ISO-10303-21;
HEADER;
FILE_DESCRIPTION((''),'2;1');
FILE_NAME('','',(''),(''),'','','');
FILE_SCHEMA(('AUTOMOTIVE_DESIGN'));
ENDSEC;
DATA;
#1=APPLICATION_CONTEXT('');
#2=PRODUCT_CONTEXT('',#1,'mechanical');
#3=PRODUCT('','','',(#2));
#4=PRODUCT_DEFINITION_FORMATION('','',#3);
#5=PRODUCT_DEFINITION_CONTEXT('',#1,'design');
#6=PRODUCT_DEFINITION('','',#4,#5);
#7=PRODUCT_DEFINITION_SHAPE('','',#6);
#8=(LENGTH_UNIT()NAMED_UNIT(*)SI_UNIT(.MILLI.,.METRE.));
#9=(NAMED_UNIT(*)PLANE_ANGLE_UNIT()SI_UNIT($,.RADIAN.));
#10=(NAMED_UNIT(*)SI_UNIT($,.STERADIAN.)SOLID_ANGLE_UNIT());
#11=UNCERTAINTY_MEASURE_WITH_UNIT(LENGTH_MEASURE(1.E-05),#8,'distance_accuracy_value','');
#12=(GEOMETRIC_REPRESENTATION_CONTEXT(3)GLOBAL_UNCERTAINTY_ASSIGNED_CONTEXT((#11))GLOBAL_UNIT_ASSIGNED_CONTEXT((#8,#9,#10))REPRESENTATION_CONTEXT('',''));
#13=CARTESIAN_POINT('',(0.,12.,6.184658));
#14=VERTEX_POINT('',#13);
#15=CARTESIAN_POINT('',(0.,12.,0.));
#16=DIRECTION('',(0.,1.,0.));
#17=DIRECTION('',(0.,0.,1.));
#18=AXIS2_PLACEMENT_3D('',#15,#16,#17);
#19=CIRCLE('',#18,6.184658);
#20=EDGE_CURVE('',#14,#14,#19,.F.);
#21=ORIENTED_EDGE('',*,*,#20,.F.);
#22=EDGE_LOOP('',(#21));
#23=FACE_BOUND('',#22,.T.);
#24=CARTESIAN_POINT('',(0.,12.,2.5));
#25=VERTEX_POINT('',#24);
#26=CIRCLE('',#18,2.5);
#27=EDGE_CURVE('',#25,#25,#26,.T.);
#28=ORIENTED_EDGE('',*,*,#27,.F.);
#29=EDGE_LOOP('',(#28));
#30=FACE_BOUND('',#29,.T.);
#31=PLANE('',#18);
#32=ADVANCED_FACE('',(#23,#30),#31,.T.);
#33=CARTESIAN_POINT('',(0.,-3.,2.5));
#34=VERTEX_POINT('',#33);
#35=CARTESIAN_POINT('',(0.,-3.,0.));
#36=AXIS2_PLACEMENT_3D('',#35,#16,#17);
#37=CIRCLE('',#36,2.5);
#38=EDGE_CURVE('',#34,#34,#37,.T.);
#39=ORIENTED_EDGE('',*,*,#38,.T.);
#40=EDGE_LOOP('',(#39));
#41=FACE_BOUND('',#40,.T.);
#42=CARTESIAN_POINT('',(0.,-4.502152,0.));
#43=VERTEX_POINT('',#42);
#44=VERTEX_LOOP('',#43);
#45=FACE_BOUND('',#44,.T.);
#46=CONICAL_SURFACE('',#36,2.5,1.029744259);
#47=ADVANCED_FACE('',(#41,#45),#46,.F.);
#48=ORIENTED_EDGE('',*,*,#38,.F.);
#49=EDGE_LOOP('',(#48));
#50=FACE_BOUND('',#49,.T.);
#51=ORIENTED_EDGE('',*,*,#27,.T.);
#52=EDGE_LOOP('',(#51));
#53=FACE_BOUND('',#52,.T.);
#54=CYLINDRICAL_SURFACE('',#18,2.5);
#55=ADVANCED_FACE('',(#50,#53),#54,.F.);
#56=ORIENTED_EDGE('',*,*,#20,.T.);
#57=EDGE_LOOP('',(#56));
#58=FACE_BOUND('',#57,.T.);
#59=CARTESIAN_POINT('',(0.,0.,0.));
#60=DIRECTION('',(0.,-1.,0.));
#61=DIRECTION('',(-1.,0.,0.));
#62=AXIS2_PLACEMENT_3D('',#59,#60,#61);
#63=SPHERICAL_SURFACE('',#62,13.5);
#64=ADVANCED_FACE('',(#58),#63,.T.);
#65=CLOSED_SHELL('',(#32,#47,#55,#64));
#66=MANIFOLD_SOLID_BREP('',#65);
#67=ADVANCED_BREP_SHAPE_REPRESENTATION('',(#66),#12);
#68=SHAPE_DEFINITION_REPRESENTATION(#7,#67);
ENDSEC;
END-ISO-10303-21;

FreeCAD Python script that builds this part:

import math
import FreeCAD as App
import Part
import Sketcher

V = App.Vector

doc = App.newDocument("Part")
body = doc.addObject("PartDesign::Body", "Body")

# Sketch on XY plane
sketch1 = doc.addObject("Sketcher::SketchObject", "Sketch")
body.addObject(sketch1)
sketch1.AttachmentSupport = (doc.XY_Plane, [""])
sketch1.MapMode = "FlatFace"
sketch1.addGeometry(Part.LineSegment(V(0, 14, 0), V(0, -14, 0)), False)
sketch1.addGeometry(Part.ArcOfCircle(Part.Circle(V(0, 0, 0), V(0, 0, 1), 14), math.radians(-90), math.radians(90)), False)
sketch1.addConstraint(Sketcher.Constraint("Coincident", 0, 1, 1, 2))
sketch1.addConstraint(Sketcher.Constraint("Coincident", 1, 1, 0, 2))
sketch1.addConstraint(Sketcher.Constraint("Vertical", 0))
sketch1.addConstraint(Sketcher.Constraint("Coincident", 1, 3, -1, 1))
sketch1.addConstraint(Sketcher.Constraint("PointOnObject", 0, 1, -2))
sketch1.addConstraint(Sketcher.Constraint("Radius", 1, 13.5))
revolution = doc.addObject("PartDesign::Revolution", "Revolution")
body.addObject(revolution)
revolution.Profile = sketch1
revolution.ReferenceAxis = (sketch1, ["V_Axis"])
revolution.Angle = 360

# Sketch on XZ plane
sketch2 = doc.addObject("Sketcher::SketchObject", "Sketch001")
body.addObject(sketch2)
sketch2.AttachmentSupport = (doc.XZ_Plane, [""])
sketch2.MapMode = "FlatFace"
sketch2.AttachmentOffset = App.Placement(V(0, 0, -12), App.Rotation())
sketch2.addGeometry(Part.Circle(V(0, 0, 0), V(0, 0, 1), 16), False)
sketch2.addConstraint(Sketcher.Constraint("Coincident", 0, 3, -1, 1))
sketch2.addConstraint(Sketcher.Constraint("Diameter", 0, 31.87746))
pocket1 = doc.addObject("PartDesign::Pocket", "Pocket")
body.addObject(pocket1)
pocket1.Profile = sketch2
pocket1.Length = 10

# Sketch on XZ plane
sketch3 = doc.addObject("Sketcher::SketchObject", "Sketch002")
body.addObject(sketch3)
sketch3.AttachmentSupport = (doc.XZ_Plane, [""])
sketch3.MapMode = "FlatFace"
sketch3.AttachmentOffset = App.Placement(V(0, 0, -12), App.Rotation())
sketch3.addGeometry(Part.Circle(V(0, 0, 0), V(0, 0, 1), 2.5), False)
sketch3.addConstraint(Sketcher.Constraint("Coincident", 0, 3, -1, 1))
sketch3.addConstraint(Sketcher.Constraint("Diameter", 0, 5.0))
doc.recompute()
hole = doc.addObject("PartDesign::Hole", "Hole")
body.addObject(hole)
hole.Profile = sketch3
hole.ThreadType = "None"
hole.Diameter = 5
hole.DepthType = "Dimension"
hole.Depth = 15
hole.DrillPoint = "Angled"
hole.DrillPointAngle = 118
hole.Reversed = True

doc.recompute()
